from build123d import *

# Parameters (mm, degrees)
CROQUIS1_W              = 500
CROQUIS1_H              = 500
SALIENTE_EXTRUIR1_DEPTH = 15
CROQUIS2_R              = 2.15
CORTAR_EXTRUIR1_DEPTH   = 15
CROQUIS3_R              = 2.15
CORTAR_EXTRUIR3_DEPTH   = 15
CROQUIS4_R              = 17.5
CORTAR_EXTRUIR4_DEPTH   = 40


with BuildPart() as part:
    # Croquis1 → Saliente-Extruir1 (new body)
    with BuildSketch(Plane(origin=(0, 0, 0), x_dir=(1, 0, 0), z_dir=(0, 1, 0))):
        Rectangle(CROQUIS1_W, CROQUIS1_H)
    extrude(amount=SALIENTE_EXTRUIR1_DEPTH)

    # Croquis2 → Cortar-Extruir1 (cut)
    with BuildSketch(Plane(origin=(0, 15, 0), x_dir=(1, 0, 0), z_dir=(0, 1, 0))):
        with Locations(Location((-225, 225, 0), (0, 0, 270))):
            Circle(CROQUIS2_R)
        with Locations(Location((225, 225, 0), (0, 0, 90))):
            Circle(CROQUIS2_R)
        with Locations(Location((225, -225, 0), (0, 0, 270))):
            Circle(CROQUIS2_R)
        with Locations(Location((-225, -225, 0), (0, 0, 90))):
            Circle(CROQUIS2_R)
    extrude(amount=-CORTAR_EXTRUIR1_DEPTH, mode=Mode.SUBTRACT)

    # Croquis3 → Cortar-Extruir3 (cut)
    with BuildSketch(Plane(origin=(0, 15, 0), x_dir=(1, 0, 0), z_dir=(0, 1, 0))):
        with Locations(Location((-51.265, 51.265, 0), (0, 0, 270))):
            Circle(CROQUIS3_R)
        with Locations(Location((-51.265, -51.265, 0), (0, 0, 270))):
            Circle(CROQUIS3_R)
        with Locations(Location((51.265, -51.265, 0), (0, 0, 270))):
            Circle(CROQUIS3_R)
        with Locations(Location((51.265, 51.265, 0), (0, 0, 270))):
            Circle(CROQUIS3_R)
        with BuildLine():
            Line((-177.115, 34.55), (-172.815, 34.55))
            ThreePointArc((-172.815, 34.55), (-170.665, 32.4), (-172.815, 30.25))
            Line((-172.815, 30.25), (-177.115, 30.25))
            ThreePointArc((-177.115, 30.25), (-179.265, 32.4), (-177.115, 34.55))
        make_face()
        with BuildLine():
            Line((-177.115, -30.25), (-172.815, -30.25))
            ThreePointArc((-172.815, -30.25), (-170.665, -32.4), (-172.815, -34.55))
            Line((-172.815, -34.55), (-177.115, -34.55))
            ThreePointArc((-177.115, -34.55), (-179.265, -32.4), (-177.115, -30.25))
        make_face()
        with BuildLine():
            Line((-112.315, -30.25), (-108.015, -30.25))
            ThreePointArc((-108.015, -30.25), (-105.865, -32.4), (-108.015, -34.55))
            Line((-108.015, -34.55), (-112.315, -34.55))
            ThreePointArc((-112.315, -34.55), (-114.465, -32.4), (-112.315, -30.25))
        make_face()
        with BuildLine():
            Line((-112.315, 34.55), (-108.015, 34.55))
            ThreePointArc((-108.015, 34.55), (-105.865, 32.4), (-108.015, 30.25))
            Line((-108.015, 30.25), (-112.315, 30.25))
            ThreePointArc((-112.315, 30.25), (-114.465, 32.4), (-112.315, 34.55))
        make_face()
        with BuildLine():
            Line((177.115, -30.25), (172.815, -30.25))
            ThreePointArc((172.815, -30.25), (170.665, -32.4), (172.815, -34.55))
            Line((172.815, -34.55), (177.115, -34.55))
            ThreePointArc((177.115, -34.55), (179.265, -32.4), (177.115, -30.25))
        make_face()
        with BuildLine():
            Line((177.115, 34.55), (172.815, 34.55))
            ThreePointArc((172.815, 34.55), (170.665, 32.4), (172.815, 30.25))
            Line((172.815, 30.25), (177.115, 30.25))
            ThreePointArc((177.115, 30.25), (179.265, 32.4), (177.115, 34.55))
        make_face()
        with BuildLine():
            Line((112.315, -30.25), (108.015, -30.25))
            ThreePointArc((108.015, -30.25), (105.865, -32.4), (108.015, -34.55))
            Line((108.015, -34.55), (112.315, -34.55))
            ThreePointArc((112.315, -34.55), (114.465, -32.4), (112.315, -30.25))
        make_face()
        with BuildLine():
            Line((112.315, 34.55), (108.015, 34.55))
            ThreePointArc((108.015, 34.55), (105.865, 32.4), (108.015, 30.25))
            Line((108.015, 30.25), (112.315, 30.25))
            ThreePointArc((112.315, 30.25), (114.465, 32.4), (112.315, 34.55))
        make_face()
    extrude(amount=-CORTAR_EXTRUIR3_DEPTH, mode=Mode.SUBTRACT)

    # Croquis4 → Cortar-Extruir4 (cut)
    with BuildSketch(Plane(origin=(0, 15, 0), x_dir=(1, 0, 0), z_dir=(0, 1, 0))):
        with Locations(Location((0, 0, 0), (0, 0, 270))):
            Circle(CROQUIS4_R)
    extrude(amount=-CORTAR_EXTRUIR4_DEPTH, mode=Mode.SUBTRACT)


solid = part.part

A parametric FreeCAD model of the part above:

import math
import FreeCAD as App
import Part
import Sketcher

V = App.Vector
Q = App.Units.Quantity

doc = App.newDocument("Part")
params = doc.addObject("Spreadsheet::Sheet", "Params")
for row, (alias, value) in enumerate([
    ("sketch1_width", "500 mm"),
    ("pad1_length", "15 mm"),
    ("sketch2_diameter", "4.3 mm"),
    ("pocket1_length", "15 mm"),
    ("sketch3_diameter", "4.3 mm"),
    ("sketch3_width", "4.3 mm"),
    ("pocket2_length", "15 mm"),
    ("sketch4_diameter", "35 mm"),
    ("pocket3_length", "40 mm"),
], start=1):
    params.set(f"A{row}", alias)
    params.set(f"B{row}", "=" + value)
    params.setAlias(f"B{row}", alias)

body = doc.addObject("PartDesign::Body", "Body")

# Sketch on XZ plane
sketch1 = doc.addObject("Sketcher::SketchObject", "Sketch")
body.addObject(sketch1)
sketch1.AttachmentSupport = (doc.XZ_Plane, [""])
sketch1.MapMode = "FlatFace"
sketch1.addGeometry(Part.LineSegment(V(-250, -250, 0), V(-250, 250, 0)), False)
sketch1.addGeometry(Part.LineSegment(V(-250, 250, 0), V(250, 250, 0)), False)
sketch1.addGeometry(Part.LineSegment(V(250, 250, 0), V(250, -250, 0)), False)
sketch1.addGeometry(Part.LineSegment(V(250, -250, 0), V(-250, -250, 0)), False)
sketch1.addConstraint(Sketcher.Constraint("Coincident", 0, 2, 1, 1))
sketch1.addConstraint(Sketcher.Constraint("Coincident", 1, 2, 2, 1))
sketch1.addConstraint(Sketcher.Constraint("Coincident", 2, 2, 3, 1))
sketch1.addConstraint(Sketcher.Constraint("Coincident", 3, 2, 0, 1))
sketch1.addConstraint(Sketcher.Constraint("Vertical", 0))
sketch1.addConstraint(Sketcher.Constraint("Horizontal", 1))
sketch1.addConstraint(Sketcher.Constraint("Vertical", 2))
sketch1.addConstraint(Sketcher.Constraint("Horizontal", 3))
sketch1.addConstraint(Sketcher.Constraint("Symmetric", 0, 2, 2, 2, -1, 1))
sketch1.addConstraint(Sketcher.Constraint("Equal", 3, 0))
sketch1.addConstraint(Sketcher.Constraint("DistanceX", 1, 1, 1, 2, Q("500 mm")))
sketch1.setExpression("Constraints[10]", "Params.sketch1_width")
pad1 = doc.addObject("PartDesign::Pad", "Pad")
body.addObject(pad1)
pad1.Profile = sketch1
pad1.setExpression("Length", "Params.pad1_length")
pad1.Reversed = True

# Sketch on XZ plane
sketch2 = doc.addObject("Sketcher::SketchObject", "Sketch001")
body.addObject(sketch2)
sketch2.AttachmentSupport = (doc.XZ_Plane, [""])
sketch2.MapMode = "FlatFace"
sketch2.AttachmentOffset = App.Placement(V(0, 0, -15), App.Rotation())
sketch2.addGeometry(Part.Circle(V(-225, -225, 0), V(0, 0, 1), 2.1), False)
sketch2.addGeometry(Part.Circle(V(225, -225, 0), V(0, 0, 1), 2.1), False)
sketch2.addGeometry(Part.Circle(V(225, 225, 0), V(0, 0, 1), 2.1), False)
sketch2.addGeometry(Part.Circle(V(-225, 225, 0), V(0, 0, 1), 2.1), False)
sketch2.addConstraint(Sketcher.Constraint("Equal", 0, 1))
sketch2.addConstraint(Sketcher.Constraint("Equal", 1, 2))
sketch2.addConstraint(Sketcher.Constraint("Equal", 2, 3))
sketch2.addConstraint(Sketcher.Constraint("Symmetric", 0, 3, 2, 3, -1, 1))
sketch2.addConstraint(Sketcher.Constraint("Symmetric", 1, 3, 3, 3, -1, 1))
sketch2.addConstraint(Sketcher.Constraint("Symmetric", 0, 3, 1, 3, -2))
sketch2.addConstraint(Sketcher.Constraint("Diameter", 0, Q("4.3 mm")))
sketch2.addConstraint(Sketcher.Constraint("DistanceX", 0, 3, -1, 1, Q("225 mm")))
sketch2.addConstraint(Sketcher.Constraint("DistanceY", 0, 3, -1, 1, Q("225 mm")))
sketch2.setExpression("Constraints[6]", "Params.sketch2_diameter")
pocket1 = doc.addObject("PartDesign::Pocket", "Pocket")
body.addObject(pocket1)
pocket1.Profile = sketch2
pocket1.setExpression("Length", "Params.pocket1_length")
pocket1.Reversed = True

# Sketch on XZ plane
sketch3 = doc.addObject("Sketcher::SketchObject", "Sketch002")
body.addObject(sketch3)
sketch3.AttachmentSupport = (doc.XZ_Plane, [""])
sketch3.MapMode = "FlatFace"
sketch3.AttachmentOffset = App.Placement(V(0, 0, -15), App.Rotation())
sketch3.addGeometry(Part.Circle(V(-51.3, -51.3, 0), V(0, 0, 1), 2.1), False)
sketch3.addGeometry(Part.Circle(V(-51.3, 51.3, 0), V(0, 0, 1), 2.1), False)
sketch3.addGeometry(Part.Circle(V(51.3, 51.3, 0), V(0, 0, 1), 2.1), False)
sketch3.addGeometry(Part.Circle(V(51.3, -51.3, 0), V(0, 0, 1), 2.1), False)
sketch3.addGeometry(Part.LineSegment(V(-172.8, -34.5, 0), V(-177.1, -34.5, 0)), False)
sketch3.addGeometry(Part.ArcOfCircle(Part.Circle(V(-177.1, -32.4, 0), V(0, 0, 1), 2.1), math.radians(90), math.radians(270)), False)
sketch3.addGeometry(Part.LineSegment(V(-177.1, -30.2, 0), V(-172.8, -30.2, 0)), False)
sketch3.addGeometry(Part.ArcOfCircle(Part.Circle(V(-172.8, -32.4, 0), V(0, 0, 1), 2.1), math.radians(-90), math.radians(90)), False)
sketch3.addGeometry(Part.LineSegment(V(-172.8, 30.2, 0), V(-177.1, 30.2, 0)), False)
sketch3.addGeometry(Part.ArcOfCircle(Part.Circle(V(-177.1, 32.4, 0), V(0, 0, 1), 2.1), math.radians(90), math.radians(270)), False)
sketch3.addGeometry(Part.LineSegment(V(-177.1, 34.5, 0), V(-172.8, 34.5, 0)), False)
sketch3.addGeometry(Part.ArcOfCircle(Part.Circle(V(-172.8, 32.4, 0), V(0, 0, 1), 2.1), math.radians(-90), math.radians(90)), False)
sketch3.addGeometry(Part.LineSegment(V(-108, 30.2, 0), V(-112.3, 30.2, 0)), False)
sketch3.addGeometry(Part.ArcOfCircle(Part.Circle(V(-112.3, 32.4, 0), V(0, 0, 1), 2.1), math.radians(90), math.radians(270)), False)
sketch3.addGeometry(Part.LineSegment(V(-112.3, 34.5, 0), V(-108, 34.5, 0)), False)
sketch3.addGeometry(Part.ArcOfCircle(Part.Circle(V(-108, 32.4, 0), V(0, 0, 1), 2.1), math.radians(-90), math.radians(90)), False)
sketch3.addGeometry(Part.LineSegment(V(-108, -34.5, 0), V(-112.3, -34.5, 0)), False)
sketch3.addGeometry(Part.ArcOfCircle(Part.Circle(V(-112.3, -32.4, 0), V(0, 0, 1), 2.1), math.radians(90), math.radians(270)), False)
sketch3.addGeometry(Part.LineSegment(V(-112.3, -30.2, 0), V(-108, -30.2, 0)), False)
sketch3.addGeometry(Part.ArcOfCircle(Part.Circle(V(-108, -32.4, 0), V(0, 0, 1), 2.1), math.radians(-90), math.radians(90)), False)
sketch3.addGeometry(Part.LineSegment(V(177.1, 30.2, 0), V(172.8, 30.2, 0)), False)
sketch3.addGeometry(Part.ArcOfCircle(Part.Circle(V(172.8, 32.4, 0), V(0, 0, 1), 2.1), math.radians(90), math.radians(270)), False)
sketch3.addGeometry(Part.LineSegment(V(172.8, 34.5, 0), V(177.1, 34.5, 0)), False)
sketch3.addGeometry(Part.ArcOfCircle(Part.Circle(V(177.1, 32.4, 0), V(0, 0, 1), 2.1), math.radians(-90), math.radians(90)), False)
sketch3.addGeometry(Part.LineSegment(V(177.1, -34.5, 0), V(172.8, -34.5, 0)), False)
sketch3.addGeometry(Part.ArcOfCircle(Part.Circle(V(172.8, -32.4, 0), V(0, 0, 1), 2.1), math.radians(90), math.radians(270)), False)
sketch3.addGeometry(Part.LineSegment(V(172.8, -30.2, 0), V(177.1, -30.2, 0)), False)
sketch3.addGeometry(Part.ArcOfCircle(Part.Circle(V(177.1, -32.4, 0), V(0, 0, 1), 2.1), math.radians(-90), math.radians(90)), False)
sketch3.addGeometry(Part.LineSegment(V(112.3, 30.2, 0), V(108, 30.2, 0)), False)
sketch3.addGeometry(Part.ArcOfCircle(Part.Circle(V(108, 32.4, 0), V(0, 0, 1), 2.1), math.radians(90), math.radians(270)), False)
sketch3.addGeometry(Part.LineSegment(V(108, 34.5, 0), V(112.3, 34.5, 0)), False)
sketch3.addGeometry(Part.ArcOfCircle(Part.Circle(V(112.3, 32.4, 0), V(0, 0, 1), 2.1), math.radians(-90), math.radians(90)), False)
sketch3.addGeometry(Part.LineSegment(V(112.3, -34.5, 0), V(108, -34.5, 0)), False)
sketch3.addGeometry(Part.ArcOfCircle(Part.Circle(V(108, -32.4, 0), V(0, 0, 1), 2.1), math.radians(90), math.radians(270)), False)
sketch3.addGeometry(Part.LineSegment(V(108, -30.2, 0), V(112.3, -30.2, 0)), False)
sketch3.addGeometry(Part.ArcOfCircle(Part.Circle(V(112.3, -32.4, 0), V(0, 0, 1), 2.1), math.radians(-90), math.radians(90)), False)
sketch3.addConstraint(Sketcher.Constraint("Tangent", 4, 2, 5, 2))
sketch3.addConstraint(Sketcher.Constraint("Tangent", 5, 1, 6, 1))
sketch3.addConstraint(Sketcher.Constraint("Tangent", 6, 2, 7, 2))
sketch3.addConstraint(Sketcher.Constraint("Tangent", 7, 1, 4, 1))
sketch3.addConstraint(Sketcher.Constraint("Tangent", 8, 2, 9, 2))
sketch3.addConstraint(Sketcher.Constraint("Tangent", 9, 1, 10, 1))
sketch3.addConstraint(Sketcher.Constraint("Tangent", 10, 2, 11, 2))
sketch3.addConstraint(Sketcher.Constraint("Tangent", 11, 1, 8, 1))
sketch3.addConstraint(Sketcher.Constraint("Tangent", 12, 2, 13, 2))
sketch3.addConstraint(Sketcher.Constraint("Tangent", 13, 1, 14, 1))
sketch3.addConstraint(Sketcher.Constraint("Tangent", 14, 2, 15, 2))
sketch3.addConstraint(Sketcher.Constraint("Tangent", 15, 1, 12, 1))
sketch3.addConstraint(Sketcher.Constraint("Tangent", 16, 2, 17, 2))
sketch3.addConstraint(Sketcher.Constraint("Tangent", 17, 1, 18, 1))
sketch3.addConstraint(Sketcher.Constraint("Tangent", 18, 2, 19, 2))
sketch3.addConstraint(Sketcher.Constraint("Tangent", 19, 1, 16, 1))
sketch3.addConstraint(Sketcher.Constraint("Tangent", 20, 2, 21, 2))
sketch3.addConstraint(Sketcher.Constraint("Tangent", 21, 1, 22, 1))
sketch3.addConstraint(Sketcher.Constraint("Tangent", 22, 2, 23, 2))
sketch3.addConstraint(Sketcher.Constraint("Tangent", 23, 1, 20, 1))
sketch3.addConstraint(Sketcher.Constraint("Tangent", 24, 2, 25, 2))
sketch3.addConstraint(Sketcher.Constraint("Tangent", 25, 1, 26, 1))
sketch3.addConstraint(Sketcher.Constraint("Tangent", 26, 2, 27, 2))
sketch3.addConstraint(Sketcher.Constraint("Tangent", 27, 1, 24, 1))
sketch3.addConstraint(Sketcher.Constraint("Tangent", 28, 2, 29, 2))
sketch3.addConstraint(Sketcher.Constraint("Tangent", 29, 1, 30, 1))
sketch3.addConstraint(Sketcher.Constraint("Tangent", 30, 2, 31, 2))
sketch3.addConstraint(Sketcher.Constraint("Tangent", 31, 1, 28, 1))
sketch3.addConstraint(Sketcher.Constraint("Tangent", 32, 2, 33, 2))
sketch3.addConstraint(Sketcher.Constraint("Tangent", 33, 1, 34, 1))
sketch3.addConstraint(Sketcher.Constraint("Tangent", 34, 2, 35, 2))
sketch3.addConstraint(Sketcher.Constraint("Tangent", 35, 1, 32, 1))
sketch3.addConstraint(Sketcher.Constraint("Horizontal", 4))
sketch3.addConstraint(Sketcher.Constraint("Horizontal", 6))
sketch3.addConstraint(Sketcher.Constraint("Horizontal", 8))
sketch3.addConstraint(Sketcher.Constraint("Horizontal", 10))
sketch3.addConstraint(Sketcher.Constraint("Horizontal", 12))
sketch3.addConstraint(Sketcher.Constraint("Horizontal", 14))
sketch3.addConstraint(Sketcher.Constraint("Horizontal", 16))
sketch3.addConstraint(Sketcher.Constraint("Horizontal", 18))
sketch3.addConstraint(Sketcher.Constraint("Horizontal", 20))
sketch3.addConstraint(Sketcher.Constraint("Horizontal", 22))
sketch3.addConstraint(Sketcher.Constraint("Horizontal", 24))
sketch3.addConstraint(Sketcher.Constraint("Horizontal", 26))
sketch3.addConstraint(Sketcher.Constraint("Horizontal", 28))
sketch3.addConstraint(Sketcher.Constraint("Horizontal", 30))
sketch3.addConstraint(Sketcher.Constraint("Horizontal", 32))
sketch3.addConstraint(Sketcher.Constraint("Horizontal", 34))
sketch3.addConstraint(Sketcher.Constraint("Equal", 0, 1))
sketch3.addConstraint(Sketcher.Constraint("Equal", 1, 2))
sketch3.addConstraint(Sketcher.Constraint("Equal", 2, 3))
sketch3.addConstraint(Sketcher.Constraint("Equal", 3, 5))
sketch3.addConstraint(Sketcher.Constraint("Equal", 7, 9))
sketch3.addConstraint(Sketcher.Constraint("Equal", 11, 13))
sketch3.addConstraint(Sketcher.Constraint("Equal", 15, 17))
sketch3.addConstraint(Sketcher.Constraint("Equal", 19, 21))
sketch3.addConstraint(Sketcher.Constraint("Equal", 23, 25))
sketch3.addConstraint(Sketcher.Constraint("Equal", 27, 29))
sketch3.addConstraint(Sketcher.Constraint("Equal", 31, 33))
sketch3.addConstraint(Sketcher.Constraint("Symmetric", 0, 3, 2, 3, -1, 1))
sketch3.addConstraint(Sketcher.Constraint("Symmetric", 1, 3, 3, 3, -1, 1))
sketch3.addConstraint(Sketcher.Constraint("Symmetric", 7, 3, 21, 3, -1, 1))
sketch3.addConstraint(Sketcher.Constraint("Symmetric", 11, 3, 25, 3, -1, 1))
sketch3.addConstraint(Sketcher.Constraint("Symmetric", 19, 3, 29, 3, -1, 1))
sketch3.addConstraint(Sketcher.Constraint("Symmetric", 15, 3, 33, 3, -1, 1))
sketch3.addConstraint(Sketcher.Constraint("Symmetric", 1, 3, 2, 3, -2))
sketch3.addConstraint(Sketcher.Constraint("Symmetric", 11, 3, 21, 3, -2))
sketch3.addConstraint(Sketcher.Constraint("Symmetric", 15, 3, 29, 3, -2))
sketch3.addConstraint(Sketcher.Constraint("Horizontal", 11, 3, 13, 3))
sketch3.addConstraint(Sketcher.Constraint("Vertical", 5, 3, 9, 3))
sketch3.addConstraint(Sketcher.Constraint("Vertical", 13, 3, 17, 3))
sketch3.addConstraint(Sketcher.Constraint("Vertical", 23, 3, 27, 3))
sketch3.addConstraint(Sketcher.Constraint("Vertical", 31, 3, 35, 3))
sketch3.addConstraint(Sketcher.Constraint("Equal", 10, 12))
sketch3.addConstraint(Sketcher.Constraint("Equal", 18, 20))
sketch3.addConstraint(Sketcher.Constraint("Equal", 26, 28))
sketch3.addConstraint(Sketcher.Constraint("Diameter", 0, Q("4.3 mm")))
sketch3.addConstraint(Sketcher.Constraint("DistanceX", 4, 2, 4, 1, Q("4.3 mm")))
sketch3.addConstraint(Sketcher.Constraint("DistanceY", 5, 3, -1, 1, Q("32.4 mm")))
sketch3.addConstraint(Sketcher.Constraint("DistanceX", 11, 3, 13, 3, Q("60.5 mm")))
sketch3.addConstraint(Sketcher.Constraint("DistanceY", 0, 3, 1, 3, Q("102.53 mm")))
sketch3.addConstraint(Sketcher.Constraint("DistanceX", 1, 3, 2, 3, Q("102.53 mm")))
sketch3.addConstraint(Sketcher.Constraint("DistanceX", 5, 3, 0, 3, Q("125.85 mm")))
sketch3.setExpression("Constraints[76]", "Params.sketch3_diameter")
sketch3.setExpression("Constraints[77]", "Params.sketch3_width")
pocket2 = doc.addObject("PartDesign::Pocket", "Pocket001")
body.addObject(pocket2)
pocket2.Profile = sketch3
pocket2.setExpression("Length", "Params.pocket2_length")
pocket2.Reversed = True

# Sketch on XZ plane
sketch4 = doc.addObject("Sketcher::SketchObject", "Sketch003")
body.addObject(sketch4)
sketch4.AttachmentSupport = (doc.XZ_Plane, [""])
sketch4.MapMode = "FlatFace"
sketch4.AttachmentOffset = App.Placement(V(0, 0, -15), App.Rotation())
sketch4.addGeometry(Part.Circle(V(0, 0, 0), V(0, 0, 1), 18), False)
sketch4.addConstraint(Sketcher.Constraint("Coincident", 0, 3, -1, 1))
sketch4.addConstraint(Sketcher.Constraint("Diameter", 0, Q("35 mm")))
sketch4.setExpression("Constraints[1]", "Params.sketch4_diameter")
pocket3 = doc.addObject("PartDesign::Pocket", "Pocket002")
body.addObject(pocket3)
pocket3.Profile = sketch4
pocket3.setExpression("Length", "Params.pocket3_length")
pocket3.Reversed = True

doc.recompute()
